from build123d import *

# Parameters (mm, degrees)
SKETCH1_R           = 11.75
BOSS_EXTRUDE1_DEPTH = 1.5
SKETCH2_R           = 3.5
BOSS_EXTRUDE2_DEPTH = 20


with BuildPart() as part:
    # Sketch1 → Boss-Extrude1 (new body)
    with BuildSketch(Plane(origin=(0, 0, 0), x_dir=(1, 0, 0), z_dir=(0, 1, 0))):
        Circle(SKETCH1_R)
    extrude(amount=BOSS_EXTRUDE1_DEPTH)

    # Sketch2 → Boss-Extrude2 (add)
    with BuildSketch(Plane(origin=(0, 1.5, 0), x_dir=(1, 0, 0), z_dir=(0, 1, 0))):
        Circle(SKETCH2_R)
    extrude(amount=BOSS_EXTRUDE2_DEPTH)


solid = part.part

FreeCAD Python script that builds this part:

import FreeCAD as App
import Part
import Sketcher
Q = App.Units.Quantity

doc = App.newDocument("Part")
body = doc.addObject("PartDesign::Body", "Body")

# Sketch on XZ plane
sketch1 = body.newObject("Sketcher::SketchObject", "Sketch")
sketch1.AttachmentSupport = (doc.getObject("XZ_Plane"), [""])
sketch1.MapMode = "FlatFace"
sketch1.addGeometry(Part.Circle(App.Vector(0, 0, 0), App.Vector(0, 0, 1), 12), False)
sketch1.addConstraint([
    Sketcher.Constraint("Coincident", 0, 3, -1, 1),
    Sketcher.Constraint("Diameter", 0, Q("23.5 mm")),
])
pad1 = body.newObject("PartDesign::Pad", "Pad")
pad1.Profile = sketch1
pad1.Length = 1.5
pad1.Reversed = True

# Sketch on XZ plane
sketch2 = body.newObject("Sketcher::SketchObject", "Sketch001")
sketch2.AttachmentSupport = (doc.getObject("XZ_Plane"), [""])
sketch2.MapMode = "FlatFace"
sketch2.AttachmentOffset = App.Placement(App.Vector(0, 0, -1.5), App.Rotation())
sketch2.addGeometry(Part.Circle(App.Vector(0, 0, 0), App.Vector(0, 0, 1), 3.5), False)
sketch2.addConstraint([
    Sketcher.Constraint("Coincident", 0, 3, -1, 1),
    Sketcher.Constraint("Diameter", 0, Q("7 mm")),
])
pad2 = body.newObject("PartDesign::Pad", "Pad001")
pad2.Profile = sketch2
pad2.Length = 20
pad2.Reversed = True

doc.recompute()
